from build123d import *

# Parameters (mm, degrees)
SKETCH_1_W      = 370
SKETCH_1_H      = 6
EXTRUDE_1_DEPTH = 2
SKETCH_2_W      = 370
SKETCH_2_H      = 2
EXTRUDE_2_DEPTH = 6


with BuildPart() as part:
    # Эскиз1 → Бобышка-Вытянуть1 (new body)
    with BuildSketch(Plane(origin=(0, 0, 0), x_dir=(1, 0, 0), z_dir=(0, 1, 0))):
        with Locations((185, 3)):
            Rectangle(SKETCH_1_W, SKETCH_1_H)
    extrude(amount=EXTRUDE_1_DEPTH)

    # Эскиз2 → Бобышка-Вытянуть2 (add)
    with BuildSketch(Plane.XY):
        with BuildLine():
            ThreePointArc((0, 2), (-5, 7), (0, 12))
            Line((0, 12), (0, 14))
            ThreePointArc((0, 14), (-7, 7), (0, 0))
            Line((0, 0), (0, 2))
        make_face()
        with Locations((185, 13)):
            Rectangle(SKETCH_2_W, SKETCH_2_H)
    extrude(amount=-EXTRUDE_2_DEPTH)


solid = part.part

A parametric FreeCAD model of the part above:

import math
import FreeCAD as App
import Part
import Sketcher

V = App.Vector

doc = App.newDocument("Part")
body = doc.addObject("PartDesign::Body", "Body")

sketch1 = body.newObject("Sketcher::SketchObject", "Sketch")
sketch1.AttachmentSupport = (doc.getObject("XZ_Plane"), [""])
sketch1.MapMode = "FlatFace"
sketch1.addGeometry([
    Part.LineSegment(V(0, -6, 0), V(0, 0, 0)),
    Part.LineSegment(V(0, 0, 0), V(370, 0, 0)),
    Part.LineSegment(V(370, 0, 0), V(370, -6, 0)),
    Part.LineSegment(V(370, -6, 0), V(0, -6, 0)),
], False)
sketch1.addConstraint([
    Sketcher.Constraint("Coincident", 0, 2, 1, 1),
    Sketcher.Constraint("Coincident", 1, 2, 2, 1),
    Sketcher.Constraint("Coincident", 2, 2, 3, 1),
    Sketcher.Constraint("Coincident", 3, 2, 0, 1),
    Sketcher.Constraint("Vertical", 0),
    Sketcher.Constraint("Horizontal", 1),
    Sketcher.Constraint("Vertical", 2),
    Sketcher.Constraint("Horizontal", 3),
    Sketcher.Constraint("Coincident", 0, 2, -1, 1),
    Sketcher.Constraint("DistanceX", 1, 1, 1, 2, 370.0),
    Sketcher.Constraint("DistanceY", 0, 1, 0, 2, 6.0),
])
pad1 = body.newObject("PartDesign::Pad", "Pad")
pad1.Profile = sketch1
pad1.Length = 2
pad1.Reversed = True

sketch2 = body.newObject("Sketcher::SketchObject", "Sketch001")
sketch2.AttachmentSupport = (doc.getObject("XY_Plane"), [""])
sketch2.MapMode = "FlatFace"
sketch2.addGeometry([
    Part.ArcOfCircle(Part.Circle(V(0, 7, 0), V(0, 0, 1), 5), math.radians(90), math.radians(270)),
    Part.LineSegment(V(0, 12, 0), V(370, 12, 0)),
    Part.LineSegment(V(370, 12, 0), V(370, 14, 0)),
    Part.LineSegment(V(370, 14, 0), V(0, 14, 0)),
    Part.ArcOfCircle(Part.Circle(V(0, 7, 0), V(0, 0, 1), 7), math.radians(90), math.radians(270)),
    Part.LineSegment(V(0, 0, 0), V(0, 2, 0)),
], False)
sketch2.addConstraint([
    Sketcher.Constraint("Tangent", 0, 1, 1, 1),
    Sketcher.Constraint("Coincident", 1, 2, 2, 1),
    Sketcher.Constraint("Coincident", 2, 2, 3, 1),
    Sketcher.Constraint("Tangent", 3, 2, 4, 1),
    Sketcher.Constraint("Coincident", 4, 2, 5, 1),
    Sketcher.Constraint("Coincident", 5, 2, 0, 2),
    Sketcher.Constraint("Horizontal", 1),
    Sketcher.Constraint("Vertical", 2),
    Sketcher.Constraint("Horizontal", 3),
    Sketcher.Constraint("Vertical", 5),
    Sketcher.Constraint("Coincident", 4, 2, -1, 1),
    Sketcher.Constraint("Coincident", 4, 3, 0, 3),
    Sketcher.Constraint("PointOnObject", 0, 3, -2),
    Sketcher.Constraint("Radius", 0, 5.0),
    Sketcher.Constraint("Radius", 4, 7.0),
    Sketcher.Constraint("DistanceX", 1, 1, 1, 2, 370.0),
])
pad2 = body.newObject("PartDesign::Pad", "Pad001")
pad2.Profile = sketch2
pad2.Length = 6
pad2.Reversed = True

doc.recompute()
